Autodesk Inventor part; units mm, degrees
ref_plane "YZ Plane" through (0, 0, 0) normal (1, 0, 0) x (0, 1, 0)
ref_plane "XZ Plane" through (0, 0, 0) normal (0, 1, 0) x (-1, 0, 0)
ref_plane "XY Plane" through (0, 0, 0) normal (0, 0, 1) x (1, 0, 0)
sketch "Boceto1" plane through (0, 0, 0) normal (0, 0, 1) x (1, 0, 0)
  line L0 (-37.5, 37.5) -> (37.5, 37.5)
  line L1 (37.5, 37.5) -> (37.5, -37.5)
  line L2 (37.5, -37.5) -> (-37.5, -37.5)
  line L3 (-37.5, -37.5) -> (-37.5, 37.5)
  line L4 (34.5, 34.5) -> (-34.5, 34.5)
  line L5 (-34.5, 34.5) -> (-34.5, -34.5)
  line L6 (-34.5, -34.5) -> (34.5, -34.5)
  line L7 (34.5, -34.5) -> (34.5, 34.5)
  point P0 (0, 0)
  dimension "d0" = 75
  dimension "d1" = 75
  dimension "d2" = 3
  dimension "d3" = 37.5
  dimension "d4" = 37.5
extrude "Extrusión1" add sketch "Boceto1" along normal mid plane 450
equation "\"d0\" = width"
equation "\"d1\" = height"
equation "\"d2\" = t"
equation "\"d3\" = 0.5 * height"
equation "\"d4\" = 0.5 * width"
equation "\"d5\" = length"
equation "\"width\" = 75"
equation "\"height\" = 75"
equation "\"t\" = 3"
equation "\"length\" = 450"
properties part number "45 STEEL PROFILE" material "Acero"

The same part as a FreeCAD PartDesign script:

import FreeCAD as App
import Part
import Sketcher
from FreeCAD import Vector

doc = App.newDocument("Part")
params = doc.addObject("Spreadsheet::Sheet", "Params")
for row, (alias, value) in enumerate([
    ("sketch1_width", "75 mm"),
    ("pad1_length", "450 mm"),
], start=1):
    params.set(f"A{row}", alias)
    params.set(f"B{row}", "=" + value)
    params.setAlias(f"B{row}", alias)

body = doc.addObject("PartDesign::Body", "Body")

# Sketch on XY plane
sketch1 = doc.addObject("Sketcher::SketchObject", "Sketch")
body.addObject(sketch1)
sketch1.AttachmentSupport = (doc.XY_Plane, [""])
sketch1.MapMode = "FlatFace"
sketch1.addGeometry(Part.LineSegment(Vector(38, 38, 0), Vector(-38, 38, 0)), False)
sketch1.addGeometry(Part.LineSegment(Vector(-38, 38, 0), Vector(-38, -38, 0)), False)
sketch1.addGeometry(Part.LineSegment(Vector(-38, -38, 0), Vector(38, -38, 0)), False)
sketch1.addGeometry(Part.LineSegment(Vector(38, -38, 0), Vector(38, 38, 0)), False)
sketch1.addGeometry(Part.LineSegment(Vector(-34, 34, 0), Vector(34, 34, 0)), False)
sketch1.addGeometry(Part.LineSegment(Vector(34, 34, 0), Vector(34, -34, 0)), False)
sketch1.addGeometry(Part.LineSegment(Vector(34, -34, 0), Vector(-34, -34, 0)), False)
sketch1.addGeometry(Part.LineSegment(Vector(-34, -34, 0), Vector(-34, 34, 0)), False)
sketch1.addConstraint(Sketcher.Constraint("Coincident", 0, 2, 1, 1))
sketch1.addConstraint(Sketcher.Constraint("Coincident", 1, 2, 2, 1))
sketch1.addConstraint(Sketcher.Constraint("Coincident", 2, 2, 3, 1))
sketch1.addConstraint(Sketcher.Constraint("Coincident", 3, 2, 0, 1))
sketch1.addConstraint(Sketcher.Constraint("Coincident", 4, 2, 5, 1))
sketch1.addConstraint(Sketcher.Constraint("Coincident", 5, 2, 6, 1))
sketch1.addConstraint(Sketcher.Constraint("Coincident", 6, 2, 7, 1))
sketch1.addConstraint(Sketcher.Constraint("Coincident", 7, 2, 4, 1))
sketch1.addConstraint(Sketcher.Constraint("Horizontal", 0))
sketch1.addConstraint(Sketcher.Constraint("Vertical", 1))
sketch1.addConstraint(Sketcher.Constraint("Horizontal", 2))
sketch1.addConstraint(Sketcher.Constraint("Vertical", 3))
sketch1.addConstraint(Sketcher.Constraint("Horizontal", 4))
sketch1.addConstraint(Sketcher.Constraint("Vertical", 5))
sketch1.addConstraint(Sketcher.Constraint("Horizontal", 6))
sketch1.addConstraint(Sketcher.Constraint("Vertical", 7))
sketch1.addConstraint(Sketcher.Constraint("Symmetric", 0, 2, 2, 2, -1, 1))
sketch1.addConstraint(Sketcher.Constraint("Symmetric", 4, 2, 6, 2, -1, 1))
sketch1.addConstraint(Sketcher.Constraint("Equal", 2, 1))
sketch1.addConstraint(Sketcher.Constraint("Equal", 6, 5))
sketch1.addConstraint(Sketcher.Constraint("DistanceX", 0, 2, 0, 1, 75.0))
sketch1.addConstraint(Sketcher.Constraint("DistanceX", 4, 2, 3, 2, 3.0))
sketch1.setExpression("Constraints[20]", "Params.sketch1_width")
pad1 = doc.addObject("PartDesign::Pad", "Pad")
body.addObject(pad1)
pad1.Profile = sketch1
pad1.setExpression("Length", "Params.pad1_length")
pad1.Midplane = True

doc.recompute()
